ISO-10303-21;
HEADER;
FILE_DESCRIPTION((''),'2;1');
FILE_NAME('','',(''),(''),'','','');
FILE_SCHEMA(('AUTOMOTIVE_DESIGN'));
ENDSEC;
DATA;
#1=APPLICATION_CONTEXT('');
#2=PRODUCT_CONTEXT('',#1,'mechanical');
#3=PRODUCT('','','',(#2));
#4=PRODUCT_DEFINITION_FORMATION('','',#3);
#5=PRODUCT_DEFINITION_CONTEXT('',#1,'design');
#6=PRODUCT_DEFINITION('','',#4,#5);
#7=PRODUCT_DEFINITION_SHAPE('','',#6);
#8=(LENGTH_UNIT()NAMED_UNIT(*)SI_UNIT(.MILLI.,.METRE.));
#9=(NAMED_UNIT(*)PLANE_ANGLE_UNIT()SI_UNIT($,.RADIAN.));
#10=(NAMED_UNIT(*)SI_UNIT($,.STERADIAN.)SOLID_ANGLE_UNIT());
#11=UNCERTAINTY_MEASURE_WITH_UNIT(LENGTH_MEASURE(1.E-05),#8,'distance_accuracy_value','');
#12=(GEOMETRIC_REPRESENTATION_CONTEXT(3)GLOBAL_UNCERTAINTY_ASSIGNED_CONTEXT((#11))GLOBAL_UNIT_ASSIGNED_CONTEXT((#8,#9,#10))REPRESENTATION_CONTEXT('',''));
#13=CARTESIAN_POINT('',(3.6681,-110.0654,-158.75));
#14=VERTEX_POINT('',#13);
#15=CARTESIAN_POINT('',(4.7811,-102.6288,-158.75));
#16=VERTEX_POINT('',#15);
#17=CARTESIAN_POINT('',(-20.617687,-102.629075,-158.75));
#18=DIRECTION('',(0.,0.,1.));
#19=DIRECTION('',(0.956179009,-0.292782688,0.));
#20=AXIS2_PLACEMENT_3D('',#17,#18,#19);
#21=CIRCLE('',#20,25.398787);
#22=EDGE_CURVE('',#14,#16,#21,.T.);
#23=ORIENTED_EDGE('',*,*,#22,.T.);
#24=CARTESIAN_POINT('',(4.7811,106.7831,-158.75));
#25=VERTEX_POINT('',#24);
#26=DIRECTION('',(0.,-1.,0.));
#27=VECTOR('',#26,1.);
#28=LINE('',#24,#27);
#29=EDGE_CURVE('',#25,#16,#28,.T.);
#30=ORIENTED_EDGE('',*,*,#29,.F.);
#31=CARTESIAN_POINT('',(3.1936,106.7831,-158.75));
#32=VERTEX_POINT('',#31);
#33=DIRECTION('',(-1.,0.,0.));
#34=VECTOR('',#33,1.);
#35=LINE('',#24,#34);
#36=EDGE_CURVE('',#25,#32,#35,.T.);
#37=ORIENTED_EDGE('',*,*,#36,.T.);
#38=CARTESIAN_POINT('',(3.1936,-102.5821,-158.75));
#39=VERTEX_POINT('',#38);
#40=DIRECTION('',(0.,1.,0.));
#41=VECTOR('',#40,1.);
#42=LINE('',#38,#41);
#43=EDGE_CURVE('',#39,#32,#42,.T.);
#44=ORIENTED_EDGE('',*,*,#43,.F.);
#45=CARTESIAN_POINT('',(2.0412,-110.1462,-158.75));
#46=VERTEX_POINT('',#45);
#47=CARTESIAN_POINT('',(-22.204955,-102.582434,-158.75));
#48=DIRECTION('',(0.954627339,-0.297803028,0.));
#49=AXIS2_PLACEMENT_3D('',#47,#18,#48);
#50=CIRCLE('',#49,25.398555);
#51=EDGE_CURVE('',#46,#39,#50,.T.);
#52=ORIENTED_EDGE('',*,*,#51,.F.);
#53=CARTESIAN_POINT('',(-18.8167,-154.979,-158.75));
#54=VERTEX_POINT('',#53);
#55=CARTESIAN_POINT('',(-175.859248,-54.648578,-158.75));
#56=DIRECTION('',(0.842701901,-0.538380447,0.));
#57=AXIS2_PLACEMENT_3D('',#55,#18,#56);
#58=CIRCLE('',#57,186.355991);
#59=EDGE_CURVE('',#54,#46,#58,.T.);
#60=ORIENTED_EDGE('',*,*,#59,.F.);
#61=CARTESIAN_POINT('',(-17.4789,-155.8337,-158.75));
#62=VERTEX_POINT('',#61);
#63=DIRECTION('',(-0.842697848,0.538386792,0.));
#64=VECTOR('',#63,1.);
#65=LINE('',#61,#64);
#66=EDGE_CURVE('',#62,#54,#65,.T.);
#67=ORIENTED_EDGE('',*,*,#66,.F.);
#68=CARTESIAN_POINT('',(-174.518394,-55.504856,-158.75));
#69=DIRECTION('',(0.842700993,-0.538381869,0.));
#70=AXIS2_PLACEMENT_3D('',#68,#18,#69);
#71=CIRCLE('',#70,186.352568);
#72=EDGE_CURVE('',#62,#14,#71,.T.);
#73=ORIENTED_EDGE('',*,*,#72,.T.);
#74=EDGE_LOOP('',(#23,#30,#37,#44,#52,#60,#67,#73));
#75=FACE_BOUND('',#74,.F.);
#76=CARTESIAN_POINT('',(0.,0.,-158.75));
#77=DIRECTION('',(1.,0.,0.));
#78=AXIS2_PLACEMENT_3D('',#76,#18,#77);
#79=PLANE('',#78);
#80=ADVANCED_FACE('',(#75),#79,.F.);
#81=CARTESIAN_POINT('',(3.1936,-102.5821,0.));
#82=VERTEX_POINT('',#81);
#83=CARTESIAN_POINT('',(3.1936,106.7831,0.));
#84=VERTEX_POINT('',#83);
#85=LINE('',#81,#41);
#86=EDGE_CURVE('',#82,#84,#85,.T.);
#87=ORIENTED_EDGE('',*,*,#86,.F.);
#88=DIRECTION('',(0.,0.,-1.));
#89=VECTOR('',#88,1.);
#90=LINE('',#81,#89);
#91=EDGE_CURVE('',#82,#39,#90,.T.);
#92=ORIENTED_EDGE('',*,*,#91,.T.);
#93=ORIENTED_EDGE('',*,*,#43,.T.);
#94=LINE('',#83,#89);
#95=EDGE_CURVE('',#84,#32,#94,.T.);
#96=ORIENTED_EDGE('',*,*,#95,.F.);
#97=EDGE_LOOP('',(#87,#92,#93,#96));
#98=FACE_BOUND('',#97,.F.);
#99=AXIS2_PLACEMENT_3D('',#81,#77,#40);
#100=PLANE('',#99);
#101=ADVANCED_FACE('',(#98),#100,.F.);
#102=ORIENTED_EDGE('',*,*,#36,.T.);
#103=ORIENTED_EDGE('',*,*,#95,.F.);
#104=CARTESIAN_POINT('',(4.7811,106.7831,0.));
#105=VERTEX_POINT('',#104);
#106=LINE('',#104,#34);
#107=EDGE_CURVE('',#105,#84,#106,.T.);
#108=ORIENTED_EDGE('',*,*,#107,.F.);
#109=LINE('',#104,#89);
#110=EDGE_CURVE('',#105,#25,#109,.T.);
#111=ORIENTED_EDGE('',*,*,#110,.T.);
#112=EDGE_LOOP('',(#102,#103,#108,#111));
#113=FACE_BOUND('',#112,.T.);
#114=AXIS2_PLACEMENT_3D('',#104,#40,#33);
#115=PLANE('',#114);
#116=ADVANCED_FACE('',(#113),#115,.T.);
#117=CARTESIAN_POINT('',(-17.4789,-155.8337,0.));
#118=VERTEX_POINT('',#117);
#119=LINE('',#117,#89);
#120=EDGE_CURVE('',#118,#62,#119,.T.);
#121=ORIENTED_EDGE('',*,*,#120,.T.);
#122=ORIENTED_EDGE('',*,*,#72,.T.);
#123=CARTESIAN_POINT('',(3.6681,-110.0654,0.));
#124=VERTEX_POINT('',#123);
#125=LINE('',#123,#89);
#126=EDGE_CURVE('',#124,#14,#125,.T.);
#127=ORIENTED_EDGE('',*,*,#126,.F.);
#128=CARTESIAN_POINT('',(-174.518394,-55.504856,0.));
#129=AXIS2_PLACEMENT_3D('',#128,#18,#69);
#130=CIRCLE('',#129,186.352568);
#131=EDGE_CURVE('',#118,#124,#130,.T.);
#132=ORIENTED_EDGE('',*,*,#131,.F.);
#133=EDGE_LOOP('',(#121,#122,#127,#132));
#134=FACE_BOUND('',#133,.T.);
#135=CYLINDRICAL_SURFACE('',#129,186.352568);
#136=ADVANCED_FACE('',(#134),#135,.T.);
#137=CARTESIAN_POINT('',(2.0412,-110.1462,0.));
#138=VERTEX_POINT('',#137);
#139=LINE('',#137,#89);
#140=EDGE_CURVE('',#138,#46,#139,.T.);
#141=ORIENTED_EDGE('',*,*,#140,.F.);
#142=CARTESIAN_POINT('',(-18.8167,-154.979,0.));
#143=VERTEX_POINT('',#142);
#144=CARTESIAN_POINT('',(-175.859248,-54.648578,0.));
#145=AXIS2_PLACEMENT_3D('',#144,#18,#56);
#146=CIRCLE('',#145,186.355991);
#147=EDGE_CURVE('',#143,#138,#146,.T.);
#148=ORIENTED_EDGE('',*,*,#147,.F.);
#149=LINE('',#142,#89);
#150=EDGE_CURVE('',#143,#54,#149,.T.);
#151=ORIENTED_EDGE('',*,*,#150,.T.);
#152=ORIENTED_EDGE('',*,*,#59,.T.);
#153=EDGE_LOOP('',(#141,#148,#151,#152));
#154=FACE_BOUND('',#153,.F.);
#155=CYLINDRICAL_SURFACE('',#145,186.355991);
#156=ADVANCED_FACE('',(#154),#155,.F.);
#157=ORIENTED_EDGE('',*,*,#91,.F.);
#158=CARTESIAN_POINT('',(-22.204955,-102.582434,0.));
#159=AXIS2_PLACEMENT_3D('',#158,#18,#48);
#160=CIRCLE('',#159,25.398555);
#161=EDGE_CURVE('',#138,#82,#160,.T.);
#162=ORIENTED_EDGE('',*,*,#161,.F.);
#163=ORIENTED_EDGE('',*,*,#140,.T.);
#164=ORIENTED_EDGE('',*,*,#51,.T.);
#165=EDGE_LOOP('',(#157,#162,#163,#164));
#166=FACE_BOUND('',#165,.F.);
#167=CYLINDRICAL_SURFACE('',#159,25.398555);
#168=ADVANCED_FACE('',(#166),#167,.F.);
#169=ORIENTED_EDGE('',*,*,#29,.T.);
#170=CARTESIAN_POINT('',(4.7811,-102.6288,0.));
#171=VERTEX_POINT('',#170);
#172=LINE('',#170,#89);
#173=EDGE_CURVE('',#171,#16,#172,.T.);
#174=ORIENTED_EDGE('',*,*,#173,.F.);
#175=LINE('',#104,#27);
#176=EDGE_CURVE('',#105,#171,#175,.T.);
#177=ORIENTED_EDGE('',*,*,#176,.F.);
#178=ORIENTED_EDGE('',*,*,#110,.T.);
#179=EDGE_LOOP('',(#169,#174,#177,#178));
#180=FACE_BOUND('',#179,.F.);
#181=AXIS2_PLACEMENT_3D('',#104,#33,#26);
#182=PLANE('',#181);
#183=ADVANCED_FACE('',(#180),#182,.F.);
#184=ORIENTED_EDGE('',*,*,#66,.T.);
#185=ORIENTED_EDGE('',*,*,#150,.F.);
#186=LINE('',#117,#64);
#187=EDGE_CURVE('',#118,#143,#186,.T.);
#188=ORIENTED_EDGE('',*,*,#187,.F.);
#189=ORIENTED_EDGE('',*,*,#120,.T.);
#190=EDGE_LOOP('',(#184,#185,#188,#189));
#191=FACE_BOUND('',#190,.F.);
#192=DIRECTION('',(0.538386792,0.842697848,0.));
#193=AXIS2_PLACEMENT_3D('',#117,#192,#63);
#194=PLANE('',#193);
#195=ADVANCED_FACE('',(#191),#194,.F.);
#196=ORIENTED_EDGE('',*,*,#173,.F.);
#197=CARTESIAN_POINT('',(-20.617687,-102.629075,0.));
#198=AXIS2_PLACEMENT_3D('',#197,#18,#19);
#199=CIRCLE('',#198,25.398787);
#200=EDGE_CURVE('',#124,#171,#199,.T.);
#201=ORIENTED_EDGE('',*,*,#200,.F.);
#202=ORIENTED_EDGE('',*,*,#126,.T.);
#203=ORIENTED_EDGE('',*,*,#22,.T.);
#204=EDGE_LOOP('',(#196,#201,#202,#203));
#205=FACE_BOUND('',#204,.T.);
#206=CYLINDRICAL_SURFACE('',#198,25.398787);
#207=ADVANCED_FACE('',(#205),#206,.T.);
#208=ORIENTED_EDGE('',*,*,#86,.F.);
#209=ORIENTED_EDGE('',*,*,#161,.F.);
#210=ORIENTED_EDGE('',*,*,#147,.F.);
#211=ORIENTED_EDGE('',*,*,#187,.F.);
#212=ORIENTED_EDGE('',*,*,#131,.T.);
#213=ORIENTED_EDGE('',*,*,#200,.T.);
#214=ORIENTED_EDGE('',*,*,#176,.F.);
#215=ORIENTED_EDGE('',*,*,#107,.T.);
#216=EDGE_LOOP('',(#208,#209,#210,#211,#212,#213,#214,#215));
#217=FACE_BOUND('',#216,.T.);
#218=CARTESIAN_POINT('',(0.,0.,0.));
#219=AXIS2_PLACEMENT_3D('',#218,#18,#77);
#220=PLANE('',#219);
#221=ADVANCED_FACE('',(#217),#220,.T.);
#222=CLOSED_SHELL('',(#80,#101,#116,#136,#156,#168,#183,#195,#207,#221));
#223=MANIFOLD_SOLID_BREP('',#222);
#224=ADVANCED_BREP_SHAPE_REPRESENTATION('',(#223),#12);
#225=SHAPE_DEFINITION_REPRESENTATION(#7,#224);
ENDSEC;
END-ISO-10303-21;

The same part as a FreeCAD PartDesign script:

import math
import FreeCAD as App
import Part
import Sketcher
Q = App.Units.Quantity

doc = App.newDocument("Part")
body = doc.addObject("PartDesign::Body", "Body")

sketch1 = body.newObject("Sketcher::SketchObject", "Sketch")
sketch1.AttachmentSupport = (doc.getObject("XY_Plane"), [""])
sketch1.MapMode = "FlatFace"
sketch1.addGeometry([
    Part.LineSegment(App.Vector(4.7811, -102.6288, 0), App.Vector(4.7811, 106.7831, 0)),
    Part.LineSegment(App.Vector(4.7811, 106.7831, 0), App.Vector(3.1936, 106.7831, 0)),
    Part.LineSegment(App.Vector(3.1936, 106.7831, 0), App.Vector(3.1936, -102.5821, 0)),
    Part.ArcOfCircle(Part.Circle(App.Vector(-22.204955, -102.582434, 0), App.Vector(0, 0, 1), 25.398555), math.radians(-17.325696), math.radians(0.000752)),
    Part.ArcOfCircle(Part.Circle(App.Vector(-175.859248, -54.648578, 0), App.Vector(0, 0, 1), 186.355991), math.radians(-32.573457), math.radians(-17.325774)),
    Part.LineSegment(App.Vector(-18.8167, -154.979, 0), App.Vector(-17.4789, -155.8337, 0)),
    Part.ArcOfCircle(Part.Circle(App.Vector(-174.518394, -55.504856, 0), App.Vector(0, 0, 1), 186.352568), math.radians(-32.573553), math.radians(-17.024541)),
    Part.ArcOfCircle(Part.Circle(App.Vector(-20.617687, -102.629075, 0), App.Vector(0, 0, 1), 25.398787), math.radians(-17.024625), math.radians(0.00062)),
], False)
sketch1.addConstraint([
    Sketcher.Constraint("Coincident", 0, 2, 1, 1),
    Sketcher.Constraint("Coincident", 1, 2, 2, 1),
    Sketcher.Constraint("Tangent", 2, 2, 3, 2),
    Sketcher.Constraint("Tangent", 3, 1, 4, 2),
    Sketcher.Constraint("Coincident", 4, 1, 5, 1),
    Sketcher.Constraint("Coincident", 5, 2, 6, 1),
    Sketcher.Constraint("Tangent", 6, 2, 7, 1),
    Sketcher.Constraint("Tangent", 7, 2, 0, 1),
    Sketcher.Constraint("Vertical", 0),
    Sketcher.Constraint("Horizontal", 1),
    Sketcher.Constraint("Vertical", 2),
    Sketcher.Constraint("DistanceX", 1, 2, 1, 1, Q("0.0625 in")),
    Sketcher.Constraint("Distance", 5, Q("0.0625 in")),
    Sketcher.Constraint("DistanceX", 3, 3, 7, 3, Q("0.0625 in")),
    Sketcher.Constraint("Radius", 3, 25.3986),
    Sketcher.Constraint("Radius", 4, 186.356),
    Sketcher.Constraint("Radius", 6, 186.3526),
    Sketcher.Constraint("DistanceY", 7, 3, 4, 3, Q("1.889 in")),
    Sketcher.Constraint("DistanceY", 0, 1, 0, 2, 209.412),
    Sketcher.Constraint("DistanceY", 2, 2, 2, 1, 209.3652),
    Sketcher.Constraint("DistanceX", 3, 3, -1, 1, Q("0.8742 in")),
    Sketcher.Constraint("DistanceY", 7, 2, -1, 1, Q("4.0405 in")),
    Sketcher.Constraint("DistanceX", 7, 3, 4, 1, Q("0.0709 in")),
    Sketcher.Constraint("DistanceX", 5, 2, 3, 1, Q("0.7685 in")),
])
pad1 = body.newObject("PartDesign::Pad", "Pad")
pad1.Profile = sketch1
pad1.Length = Q("6.25 in")
pad1.Reversed = True

doc.recompute()
